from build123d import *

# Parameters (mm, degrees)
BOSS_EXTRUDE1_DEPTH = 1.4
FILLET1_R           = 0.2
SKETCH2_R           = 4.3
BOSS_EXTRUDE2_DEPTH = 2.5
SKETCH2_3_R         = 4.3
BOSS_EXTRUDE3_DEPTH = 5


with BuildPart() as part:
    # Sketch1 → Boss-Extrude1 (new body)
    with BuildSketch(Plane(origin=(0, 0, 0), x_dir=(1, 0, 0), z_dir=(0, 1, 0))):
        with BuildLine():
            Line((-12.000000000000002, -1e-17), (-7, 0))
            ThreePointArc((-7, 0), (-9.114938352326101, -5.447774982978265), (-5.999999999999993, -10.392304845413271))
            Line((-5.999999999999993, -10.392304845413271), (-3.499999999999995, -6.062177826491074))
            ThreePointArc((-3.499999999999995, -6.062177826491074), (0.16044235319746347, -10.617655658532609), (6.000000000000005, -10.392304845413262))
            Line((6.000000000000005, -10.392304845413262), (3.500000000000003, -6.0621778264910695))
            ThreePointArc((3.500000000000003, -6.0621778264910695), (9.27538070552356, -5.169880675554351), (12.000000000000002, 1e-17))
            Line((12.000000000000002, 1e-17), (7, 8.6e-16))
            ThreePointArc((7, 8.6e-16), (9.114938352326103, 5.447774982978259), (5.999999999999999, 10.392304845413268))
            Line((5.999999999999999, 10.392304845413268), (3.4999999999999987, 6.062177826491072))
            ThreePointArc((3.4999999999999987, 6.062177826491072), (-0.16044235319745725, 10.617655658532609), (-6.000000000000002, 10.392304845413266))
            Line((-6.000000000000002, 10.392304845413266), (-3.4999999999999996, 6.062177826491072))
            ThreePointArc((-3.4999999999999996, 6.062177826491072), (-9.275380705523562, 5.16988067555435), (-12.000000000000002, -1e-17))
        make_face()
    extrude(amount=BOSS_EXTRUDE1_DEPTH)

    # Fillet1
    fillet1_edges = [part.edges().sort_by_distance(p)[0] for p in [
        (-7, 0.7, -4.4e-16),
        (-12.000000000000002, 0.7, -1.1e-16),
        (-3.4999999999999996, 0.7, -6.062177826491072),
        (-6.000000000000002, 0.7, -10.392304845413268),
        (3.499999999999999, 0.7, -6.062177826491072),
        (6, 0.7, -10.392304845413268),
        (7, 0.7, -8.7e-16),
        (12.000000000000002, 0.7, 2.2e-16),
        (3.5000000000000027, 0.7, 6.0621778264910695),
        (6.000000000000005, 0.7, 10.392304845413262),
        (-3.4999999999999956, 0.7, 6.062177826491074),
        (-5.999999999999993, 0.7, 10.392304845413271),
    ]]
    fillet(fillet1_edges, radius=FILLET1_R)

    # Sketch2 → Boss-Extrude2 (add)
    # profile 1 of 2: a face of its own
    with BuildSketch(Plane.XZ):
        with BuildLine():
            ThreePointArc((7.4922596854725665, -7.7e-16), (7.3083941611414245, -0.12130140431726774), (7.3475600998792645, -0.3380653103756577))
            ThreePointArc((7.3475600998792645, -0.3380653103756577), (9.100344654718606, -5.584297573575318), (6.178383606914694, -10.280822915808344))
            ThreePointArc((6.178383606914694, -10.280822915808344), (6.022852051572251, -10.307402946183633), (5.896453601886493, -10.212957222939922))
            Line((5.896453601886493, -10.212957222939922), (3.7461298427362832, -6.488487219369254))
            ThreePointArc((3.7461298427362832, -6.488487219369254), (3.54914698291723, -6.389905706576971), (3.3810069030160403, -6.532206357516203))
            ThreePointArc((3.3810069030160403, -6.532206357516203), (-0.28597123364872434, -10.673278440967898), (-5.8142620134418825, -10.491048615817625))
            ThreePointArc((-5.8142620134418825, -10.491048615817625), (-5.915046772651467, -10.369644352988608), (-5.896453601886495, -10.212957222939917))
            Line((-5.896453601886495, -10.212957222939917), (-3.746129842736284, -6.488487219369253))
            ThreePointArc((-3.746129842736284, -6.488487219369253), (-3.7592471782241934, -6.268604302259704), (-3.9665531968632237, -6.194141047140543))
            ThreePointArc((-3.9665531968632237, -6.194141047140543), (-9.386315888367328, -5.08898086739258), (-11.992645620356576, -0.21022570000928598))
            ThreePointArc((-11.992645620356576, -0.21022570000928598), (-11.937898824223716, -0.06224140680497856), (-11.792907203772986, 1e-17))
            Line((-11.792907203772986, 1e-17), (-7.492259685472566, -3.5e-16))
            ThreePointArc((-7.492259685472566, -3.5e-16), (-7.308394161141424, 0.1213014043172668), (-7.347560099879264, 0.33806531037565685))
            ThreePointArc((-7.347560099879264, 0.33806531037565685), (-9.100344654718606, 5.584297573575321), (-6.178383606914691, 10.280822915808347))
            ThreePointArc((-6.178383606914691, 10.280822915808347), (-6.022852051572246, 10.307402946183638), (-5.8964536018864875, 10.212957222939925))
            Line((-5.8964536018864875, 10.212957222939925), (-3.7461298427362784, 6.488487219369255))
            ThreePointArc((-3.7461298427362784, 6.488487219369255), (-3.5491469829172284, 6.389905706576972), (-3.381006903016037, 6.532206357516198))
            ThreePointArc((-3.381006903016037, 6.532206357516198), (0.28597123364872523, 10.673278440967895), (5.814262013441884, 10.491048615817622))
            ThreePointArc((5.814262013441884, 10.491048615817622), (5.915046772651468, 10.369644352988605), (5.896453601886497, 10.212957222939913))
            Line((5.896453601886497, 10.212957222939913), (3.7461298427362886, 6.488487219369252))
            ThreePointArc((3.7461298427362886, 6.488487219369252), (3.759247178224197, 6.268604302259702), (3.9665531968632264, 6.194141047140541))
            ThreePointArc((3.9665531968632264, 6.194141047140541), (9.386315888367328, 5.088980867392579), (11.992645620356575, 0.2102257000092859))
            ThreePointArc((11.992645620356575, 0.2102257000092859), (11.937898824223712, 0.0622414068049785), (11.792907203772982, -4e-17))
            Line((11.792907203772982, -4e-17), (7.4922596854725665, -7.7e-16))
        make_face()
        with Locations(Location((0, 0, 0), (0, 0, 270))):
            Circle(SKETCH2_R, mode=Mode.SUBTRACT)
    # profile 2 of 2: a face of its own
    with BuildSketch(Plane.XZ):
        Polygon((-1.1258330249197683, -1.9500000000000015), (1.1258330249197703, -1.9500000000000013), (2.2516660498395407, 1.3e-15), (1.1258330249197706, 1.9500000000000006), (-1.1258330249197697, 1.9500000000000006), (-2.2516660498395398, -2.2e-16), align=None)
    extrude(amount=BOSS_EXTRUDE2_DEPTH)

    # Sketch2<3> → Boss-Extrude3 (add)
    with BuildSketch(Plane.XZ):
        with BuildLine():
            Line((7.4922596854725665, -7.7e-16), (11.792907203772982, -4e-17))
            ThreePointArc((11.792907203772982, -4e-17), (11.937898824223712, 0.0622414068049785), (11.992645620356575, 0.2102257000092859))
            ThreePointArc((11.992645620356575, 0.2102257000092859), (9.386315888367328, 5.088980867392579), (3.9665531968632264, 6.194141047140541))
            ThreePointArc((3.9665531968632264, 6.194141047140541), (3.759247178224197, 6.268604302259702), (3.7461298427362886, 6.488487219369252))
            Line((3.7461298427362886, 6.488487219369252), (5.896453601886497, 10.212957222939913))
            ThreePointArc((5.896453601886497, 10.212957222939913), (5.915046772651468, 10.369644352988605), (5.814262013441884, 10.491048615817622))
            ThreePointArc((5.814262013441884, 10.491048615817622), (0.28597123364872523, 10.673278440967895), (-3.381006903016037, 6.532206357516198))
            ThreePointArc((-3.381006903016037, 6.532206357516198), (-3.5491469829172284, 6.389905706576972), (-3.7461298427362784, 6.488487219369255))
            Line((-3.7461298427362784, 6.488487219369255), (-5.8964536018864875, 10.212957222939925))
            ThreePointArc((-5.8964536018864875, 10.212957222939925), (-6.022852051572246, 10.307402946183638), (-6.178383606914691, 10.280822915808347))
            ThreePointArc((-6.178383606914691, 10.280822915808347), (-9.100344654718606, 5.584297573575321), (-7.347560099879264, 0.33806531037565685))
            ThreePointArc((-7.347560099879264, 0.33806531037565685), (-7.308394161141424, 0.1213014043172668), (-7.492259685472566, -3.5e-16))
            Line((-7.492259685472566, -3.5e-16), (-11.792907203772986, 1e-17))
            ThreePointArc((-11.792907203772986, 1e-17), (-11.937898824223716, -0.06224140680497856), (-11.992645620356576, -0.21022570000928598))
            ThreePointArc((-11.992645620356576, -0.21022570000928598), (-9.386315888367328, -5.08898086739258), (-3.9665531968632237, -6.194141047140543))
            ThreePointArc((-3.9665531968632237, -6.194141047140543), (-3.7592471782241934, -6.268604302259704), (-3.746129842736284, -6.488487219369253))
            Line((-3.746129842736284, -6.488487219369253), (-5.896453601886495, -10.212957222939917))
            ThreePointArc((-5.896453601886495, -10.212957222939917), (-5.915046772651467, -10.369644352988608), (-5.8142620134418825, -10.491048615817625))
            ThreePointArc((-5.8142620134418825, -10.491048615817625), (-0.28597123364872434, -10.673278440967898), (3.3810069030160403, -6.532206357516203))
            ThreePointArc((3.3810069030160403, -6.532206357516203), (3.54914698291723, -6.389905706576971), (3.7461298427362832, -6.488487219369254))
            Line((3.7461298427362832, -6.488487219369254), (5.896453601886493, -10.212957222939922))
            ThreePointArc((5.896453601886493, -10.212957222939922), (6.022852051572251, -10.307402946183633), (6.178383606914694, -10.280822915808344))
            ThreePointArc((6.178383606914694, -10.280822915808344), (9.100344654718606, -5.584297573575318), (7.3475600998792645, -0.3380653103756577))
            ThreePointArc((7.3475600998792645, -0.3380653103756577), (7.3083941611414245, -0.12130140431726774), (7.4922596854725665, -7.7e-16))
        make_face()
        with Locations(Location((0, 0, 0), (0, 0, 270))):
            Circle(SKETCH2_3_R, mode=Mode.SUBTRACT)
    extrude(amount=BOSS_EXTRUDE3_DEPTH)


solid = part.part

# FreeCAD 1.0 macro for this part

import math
import FreeCAD as App
import Part
import Sketcher
Q = App.Units.Quantity


def edges_at(feature, points):
    """Names of the edges that pass closest to the given points."""
    edges = feature.Shape.Edges
    near = lambda p: min(range(len(edges)), key=lambda i: edges[i].distToShape(Part.Vertex(*p))[0])
    return sorted({f"Edge{near(p) + 1}" for p in points})

doc = App.newDocument("Part")
body = doc.addObject("PartDesign::Body", "Body")

sketch1 = doc.addObject("Sketcher::SketchObject", "Sketch")
body.addObject(sketch1)
sketch1.AttachmentSupport = (doc.XZ_Plane, [""])
sketch1.MapMode = "FlatFace"
sketch1.addGeometry([
    Part.LineSegment(App.Vector(-12, 0, 0), App.Vector(-7, 0, 0)),
    Part.ArcOfCircle(Part.Circle(App.Vector(-3, 5, 0), App.Vector(0, 0, 1), 6), math.radians(121), math.radians(228)),
    Part.LineSegment(App.Vector(-6, 10, 0), App.Vector(-4, 6, 0)),
    Part.ArcOfCircle(Part.Circle(App.Vector(3, 5, 0), App.Vector(0, 0, 1), 6), math.radians(61), math.radians(168)),
    Part.LineSegment(App.Vector(6, 10, 0), App.Vector(4, 6, 0)),
    Part.ArcOfCircle(Part.Circle(App.Vector(6, 0, 0), App.Vector(0, 0, 1), 6), math.radians(1), math.radians(108)),
    Part.LineSegment(App.Vector(12, 0, 0), App.Vector(7, 0, 0)),
    Part.ArcOfCircle(Part.Circle(App.Vector(3, -5, 0), App.Vector(0, 0, 1), 6), math.radians(-59), math.radians(48)),
    Part.LineSegment(App.Vector(6, -10, 0), App.Vector(4, -6, 0)),
    Part.ArcOfCircle(Part.Circle(App.Vector(-3, -5, 0), App.Vector(0, 0, 1), 6), math.radians(-119), math.radians(-12)),
    Part.LineSegment(App.Vector(-6, -10, 0), App.Vector(-4, -6, 0)),
    Part.ArcOfCircle(Part.Circle(App.Vector(-6, 0, 0), App.Vector(0, 0, 1), 6), math.radians(-179), math.radians(-72)),
], False)
sketch1.addConstraint([
    Sketcher.Constraint("Coincident", 0, 2, 1, 2),
    Sketcher.Constraint("Coincident", 1, 1, 2, 1),
    Sketcher.Constraint("Coincident", 2, 2, 3, 2),
    Sketcher.Constraint("Coincident", 3, 1, 4, 1),
    Sketcher.Constraint("Coincident", 4, 2, 5, 2),
    Sketcher.Constraint("Coincident", 5, 1, 6, 1),
    Sketcher.Constraint("Coincident", 6, 2, 7, 2),
    Sketcher.Constraint("Coincident", 7, 1, 8, 1),
    Sketcher.Constraint("Coincident", 8, 2, 9, 2),
    Sketcher.Constraint("Coincident", 9, 1, 10, 1),
    Sketcher.Constraint("Coincident", 10, 2, 11, 2),
    Sketcher.Constraint("Coincident", 11, 1, 0, 1),
    Sketcher.Constraint("Horizontal", 0),
    Sketcher.Constraint("Horizontal", 6),
    Sketcher.Constraint("Equal", 1, 3),
    Sketcher.Constraint("Equal", 3, 5),
    Sketcher.Constraint("Equal", 5, 7),
    Sketcher.Constraint("Equal", 7, 9),
    Sketcher.Constraint("Equal", 9, 11),
    Sketcher.Constraint("Symmetric", 1, 3, 7, 3, -1, 1),
    Sketcher.Constraint("Symmetric", 3, 3, 9, 3, -1, 1),
    Sketcher.Constraint("Symmetric", 5, 3, 11, 3, -1, 1),
    Sketcher.Constraint("Symmetric", 1, 1, 3, 1, -2),
    Sketcher.Constraint("Symmetric", 2, 2, 4, 2, -2),
    Sketcher.Constraint("Symmetric", 0, 2, 6, 2, -2),
    Sketcher.Constraint("Symmetric", 7, 1, 9, 1, -2),
    Sketcher.Constraint("Symmetric", 8, 2, 10, 2, -2),
    Sketcher.Constraint("Radius", 1, Q("6.5 mm")),
    Sketcher.Constraint("DistanceX", 0, 1, 0, 2, Q("5 mm")),
    Sketcher.Constraint("Angle", 2, Q("-60 deg")),
    Sketcher.Constraint("Distance", 2, Q("5 mm")),
    Sketcher.Constraint("DistanceX", 0, 2, -1, 1, Q("7 mm")),
    Sketcher.Constraint("DistanceX", 1, 1, -1, 1, Q("6 mm")),
    Sketcher.Constraint("DistanceX", 7, 3, 3, 3, Q("0.2115 mm")),
])
pad1 = doc.addObject("PartDesign::Pad", "Pad")
body.addObject(pad1)
pad1.Profile = sketch1
pad1.Length = 1.4
pad1.Reversed = True
doc.recompute()

fillet = doc.addObject("PartDesign::Fillet", "Fillet")
body.addObject(fillet)
fillet.Base = (pad1, edges_at(pad1, [
    (-7, 0.7, 0),
    (-12, 0.7, 0),
    (-3.5, 0.7, -6.062),
    (-6, 0.7, -10.392),
    (3.5, 0.7, -6.062),
    (6, 0.7, -10.392),
    (7, 0.7, 0),
    (12, 0.7, 0),
    (3.5, 0.7, 6.062),
    (6, 0.7, 10.392),
    (-3.5, 0.7, 6.062),
    (-6, 0.7, 10.392),
]))
fillet.Radius = 0.2

sketch2 = doc.addObject("Sketcher::SketchObject", "Sketch001")
body.addObject(sketch2)
sketch2.AttachmentSupport = (doc.XZ_Plane, [""])
sketch2.MapMode = "FlatFace"
sketch2.addGeometry([
    Part.ArcOfCircle(Part.Circle(App.Vector(7.49, -0.2, 0), App.Vector(0, 0, 1), 0.2), math.radians(90), math.radians(224)),
    Part.LineSegment(App.Vector(7.49, 0, 0), App.Vector(11.79, 0, 0)),
    Part.ArcOfCircle(Part.Circle(App.Vector(11.79, 0.2, 0), App.Vector(0, 0, 1), 0.2), math.radians(-90), math.radians(3)),
    Part.ArcOfCircle(Part.Circle(App.Vector(5.5, -0.12, 0), App.Vector(0, 0, 1), 6.5), math.radians(3), math.radians(104)),
    Part.ArcOfCircle(Part.Circle(App.Vector(3.92, 6.39, 0), App.Vector(0, 0, 1), 0.2), math.radians(150), math.radians(284)),
    Part.LineSegment(App.Vector(3.75, 6.49, 0), App.Vector(5.9, 10.21, 0)),
    Part.ArcOfCircle(Part.Circle(App.Vector(5.72, 10.31, 0), App.Vector(0, 0, 1), 0.2), math.radians(-30), math.radians(63)),
    Part.ArcOfCircle(Part.Circle(App.Vector(2.86, 4.7, 0), App.Vector(0, 0, 1), 6.5), math.radians(63), math.radians(164)),
    Part.ArcOfCircle(Part.Circle(App.Vector(-3.57, 6.59, 0), App.Vector(0, 0, 1), 0.2), math.radians(-150), math.radians(-16)),
    Part.LineSegment(App.Vector(-3.75, 6.49, 0), App.Vector(-5.9, 10.21, 0)),
    Part.ArcOfCircle(Part.Circle(App.Vector(-6.07, 10.11, 0), App.Vector(0, 0, 1), 0.2), math.radians(30), math.radians(123)),
    Part.ArcOfCircle(Part.Circle(App.Vector(-2.64, 4.83, 0), App.Vector(0, 0, 1), 6.5), math.radians(123), math.radians(224)),
    Part.ArcOfCircle(Part.Circle(App.Vector(-7.49, 0.2, 0), App.Vector(0, 0, 1), 0.2), math.radians(-90), math.radians(44)),
    Part.LineSegment(App.Vector(-7.49, 0, 0), App.Vector(-11.79, 0, 0)),
    Part.ArcOfCircle(Part.Circle(App.Vector(-11.79, -0.2, 0), App.Vector(0, 0, 1), 0.2), math.radians(90), math.radians(183)),
    Part.ArcOfCircle(Part.Circle(App.Vector(-5.5, 0.12, 0), App.Vector(0, 0, 1), 6.5), math.radians(-177), math.radians(-76)),
    Part.ArcOfCircle(Part.Circle(App.Vector(-3.92, -6.39, 0), App.Vector(0, 0, 1), 0.2), math.radians(-30), math.radians(104)),
    Part.LineSegment(App.Vector(-3.75, -6.49, 0), App.Vector(-5.9, -10.21, 0)),
    Part.ArcOfCircle(Part.Circle(App.Vector(-5.72, -10.31, 0), App.Vector(0, 0, 1), 0.2), math.radians(150), math.radians(243)),
    Part.ArcOfCircle(Part.Circle(App.Vector(-2.86, -4.7, 0), App.Vector(0, 0, 1), 6.5), math.radians(-117), math.radians(-16)),
    Part.ArcOfCircle(Part.Circle(App.Vector(3.57, -6.59, 0), App.Vector(0, 0, 1), 0.2), math.radians(30), math.radians(164)),
    Part.LineSegment(App.Vector(3.75, -6.49, 0), App.Vector(5.9, -10.21, 0)),
    Part.ArcOfCircle(Part.Circle(App.Vector(6.07, -10.11, 0), App.Vector(0, 0, 1), 0.2), math.radians(-150), math.radians(-57)),
    Part.ArcOfCircle(Part.Circle(App.Vector(2.64, -4.83, 0), App.Vector(0, 0, 1), 6.5), math.radians(-57), math.radians(44)),
    Part.Circle(App.Vector(0, 0, 0), App.Vector(0, 0, 1), 4.3),
    Part.LineSegment(App.Vector(-1.13, -1.95, 0), App.Vector(1.13, -1.95, 0)),
    Part.LineSegment(App.Vector(1.13, -1.95, 0), App.Vector(2.25, 0, 0)),
    Part.LineSegment(App.Vector(2.25, 0, 0), App.Vector(1.13, 1.95, 0)),
    Part.LineSegment(App.Vector(1.13, 1.95, 0), App.Vector(-1.13, 1.95, 0)),
    Part.LineSegment(App.Vector(-1.13, 1.95, 0), App.Vector(-2.25, 0, 0)),
    Part.LineSegment(App.Vector(-2.25, 0, 0), App.Vector(-1.13, -1.95, 0)),
], False)
sketch2.addConstraint([
    Sketcher.Constraint("Tangent", 0, 1, 1, 1),
    Sketcher.Constraint("Tangent", 1, 2, 2, 1),
    Sketcher.Constraint("Tangent", 2, 2, 3, 1),
    Sketcher.Constraint("Tangent", 3, 2, 4, 2),
    Sketcher.Constraint("Tangent", 4, 1, 5, 1),
    Sketcher.Constraint("Tangent", 5, 2, 6, 1),
    Sketcher.Constraint("Tangent", 6, 2, 7, 1),
    Sketcher.Constraint("Tangent", 7, 2, 8, 2),
    Sketcher.Constraint("Tangent", 8, 1, 9, 1),
    Sketcher.Constraint("Tangent", 9, 2, 10, 1),
    Sketcher.Constraint("Tangent", 10, 2, 11, 1),
    Sketcher.Constraint("Tangent", 11, 2, 12, 2),
    Sketcher.Constraint("Tangent", 12, 1, 13, 1),
    Sketcher.Constraint("Tangent", 13, 2, 14, 1),
    Sketcher.Constraint("Tangent", 14, 2, 15, 1),
    Sketcher.Constraint("Tangent", 15, 2, 16, 2),
    Sketcher.Constraint("Tangent", 16, 1, 17, 1),
    Sketcher.Constraint("Tangent", 17, 2, 18, 1),
    Sketcher.Constraint("Tangent", 18, 2, 19, 1),
    Sketcher.Constraint("Tangent", 19, 2, 20, 2),
    Sketcher.Constraint("Tangent", 20, 1, 21, 1),
    Sketcher.Constraint("Tangent", 21, 2, 22, 1),
    Sketcher.Constraint("Tangent", 22, 2, 23, 1),
    Sketcher.Constraint("Tangent", 23, 2, 0, 2),
    Sketcher.Constraint("Coincident", 25, 2, 26, 1),
    Sketcher.Constraint("Coincident", 26, 2, 27, 1),
    Sketcher.Constraint("Coincident", 27, 2, 28, 1),
    Sketcher.Constraint("Coincident", 28, 2, 29, 1),
    Sketcher.Constraint("Coincident", 29, 2, 30, 1),
    Sketcher.Constraint("Coincident", 30, 2, 25, 1),
    Sketcher.Constraint("Horizontal", 1),
    Sketcher.Constraint("Horizontal", 13),
    Sketcher.Constraint("Horizontal", 25),
    Sketcher.Constraint("Horizontal", 28),
    Sketcher.Constraint("Coincident", 24, 3, -1, 1),
    Sketcher.Constraint("Equal", 0, 2),
    Sketcher.Constraint("Equal", 2, 4),
    Sketcher.Constraint("Equal", 4, 6),
    Sketcher.Constraint("Equal", 3, 7),
    Sketcher.Constraint("Equal", 6, 8),
    Sketcher.Constraint("Equal", 8, 10),
    Sketcher.Constraint("Equal", 7, 11),
    Sketcher.Constraint("Equal", 10, 12),
    Sketcher.Constraint("Equal", 12, 14),
    Sketcher.Constraint("Equal", 11, 15),
    Sketcher.Constraint("Equal", 14, 16),
    Sketcher.Constraint("Equal", 16, 18),
    Sketcher.Constraint("Equal", 15, 19),
    Sketcher.Constraint("Equal", 18, 20),
    Sketcher.Constraint("Equal", 20, 22),
    Sketcher.Constraint("Equal", 19, 23),
    Sketcher.Constraint("Symmetric", 0, 3, 12, 3, -1, 1),
    Sketcher.Constraint("Symmetric", 3, 3, 15, 3, -1, 1),
    Sketcher.Constraint("Symmetric", 6, 3, 18, 3, -1, 1),
    Sketcher.Constraint("Symmetric", 8, 3, 20, 3, -1, 1),
    Sketcher.Constraint("Symmetric", 10, 3, 22, 3, -1, 1),
    Sketcher.Constraint("Symmetric", 25, 2, 28, 2, -1, 1),
    Sketcher.Constraint("Symmetric", 26, 2, 29, 2, -1, 1),
    Sketcher.Constraint("Symmetric", 4, 1, 8, 1, -2),
    Sketcher.Constraint("Symmetric", 5, 2, 9, 2, -2),
    Sketcher.Constraint("PointOnObject", 0, 1, -1),
    Sketcher.Constraint("PointOnObject", 26, 2, -1),
    Sketcher.Constraint("Parallel", 5, 17),
    Sketcher.Constraint("Parallel", 17, 26),
    Sketcher.Constraint("Parallel", 21, 27),
    Sketcher.Constraint("Parallel", 27, 30),
    Sketcher.Constraint("Diameter", 24, Q("8.6 mm")),
    Sketcher.Constraint("Radius", 0, Q("0.2 mm")),
    Sketcher.Constraint("Radius", 3, Q("6.5 mm")),
    Sketcher.Constraint("Angle", 5, Q("60 deg")),
    Sketcher.Constraint("DistanceY", 25, 2, 27, 2, Q("3.9 mm")),
    Sketcher.Constraint("DistanceX", 3, 3, 6, 3, Q("0.222101 mm")),
    Sketcher.Constraint("DistanceX", 8, 3, 11, 3, Q("0.928101 mm")),
    Sketcher.Constraint("DistanceY", 11, 3, 8, 3, Q("1.763299 mm")),
    Sketcher.Constraint("DistanceX", 12, 3, 10, 3, Q("1.422601 mm")),
    Sketcher.Constraint("DistanceX", 28, 2, 26, 2, Q("3.377499 mm")),
    Sketcher.Constraint("DistanceX", -1, 1, 0, 3, Q("7.49226 mm")),
])
pad2 = doc.addObject("PartDesign::Pad", "Pad001")
body.addObject(pad2)
pad2.Profile = sketch2
pad2.Length = 2.5

sketch3 = doc.addObject("Sketcher::SketchObject", "Sketch002")
body.addObject(sketch3)
sketch3.AttachmentSupport = (doc.XZ_Plane, [""])
sketch3.MapMode = "FlatFace"
sketch3.addGeometry([
    Part.LineSegment(App.Vector(7.49, 0, 0), App.Vector(11.79, 0, 0)),
    Part.ArcOfCircle(Part.Circle(App.Vector(11.79, 0.2, 0), App.Vector(0, 0, 1), 0.2), math.radians(-90), math.radians(3)),
    Part.ArcOfCircle(Part.Circle(App.Vector(5.5, -0.12, 0), App.Vector(0, 0, 1), 6.5), math.radians(3), math.radians(104)),
    Part.ArcOfCircle(Part.Circle(App.Vector(3.92, 6.39, 0), App.Vector(0, 0, 1), 0.2), math.radians(150), math.radians(284)),
    Part.LineSegment(App.Vector(3.75, 6.49, 0), App.Vector(5.9, 10.21, 0)),
    Part.ArcOfCircle(Part.Circle(App.Vector(5.72, 10.31, 0), App.Vector(0, 0, 1), 0.2), math.radians(-30), math.radians(63)),
    Part.ArcOfCircle(Part.Circle(App.Vector(2.86, 4.7, 0), App.Vector(0, 0, 1), 6.5), math.radians(63), math.radians(164)),
    Part.ArcOfCircle(Part.Circle(App.Vector(-3.57, 6.59, 0), App.Vector(0, 0, 1), 0.2), math.radians(-150), math.radians(-16)),
    Part.LineSegment(App.Vector(-3.75, 6.49, 0), App.Vector(-5.9, 10.21, 0)),
    Part.ArcOfCircle(Part.Circle(App.Vector(-6.07, 10.11, 0), App.Vector(0, 0, 1), 0.2), math.radians(30), math.radians(123)),
    Part.ArcOfCircle(Part.Circle(App.Vector(-2.64, 4.83, 0), App.Vector(0, 0, 1), 6.5), math.radians(123), math.radians(224)),
    Part.ArcOfCircle(Part.Circle(App.Vector(-7.49, 0.2, 0), App.Vector(0, 0, 1), 0.2), math.radians(-90), math.radians(44)),
    Part.LineSegment(App.Vector(-7.49, 0, 0), App.Vector(-11.79, 0, 0)),
    Part.ArcOfCircle(Part.Circle(App.Vector(-11.79, -0.2, 0), App.Vector(0, 0, 1), 0.2), math.radians(90), math.radians(183)),
    Part.ArcOfCircle(Part.Circle(App.Vector(-5.5, 0.12, 0), App.Vector(0, 0, 1), 6.5), math.radians(-177), math.radians(-76)),
    Part.ArcOfCircle(Part.Circle(App.Vector(-3.92, -6.39, 0), App.Vector(0, 0, 1), 0.2), math.radians(-30), math.radians(104)),
    Part.LineSegment(App.Vector(-3.75, -6.49, 0), App.Vector(-5.9, -10.21, 0)),
    Part.ArcOfCircle(Part.Circle(App.Vector(-5.72, -10.31, 0), App.Vector(0, 0, 1), 0.2), math.radians(150), math.radians(243)),
    Part.ArcOfCircle(Part.Circle(App.Vector(-2.86, -4.7, 0), App.Vector(0, 0, 1), 6.5), math.radians(-117), math.radians(-16)),
    Part.ArcOfCircle(Part.Circle(App.Vector(3.57, -6.59, 0), App.Vector(0, 0, 1), 0.2), math.radians(30), math.radians(164)),
    Part.LineSegment(App.Vector(3.75, -6.49, 0), App.Vector(5.9, -10.21, 0)),
    Part.ArcOfCircle(Part.Circle(App.Vector(6.07, -10.11, 0), App.Vector(0, 0, 1), 0.2), math.radians(-150), math.radians(-57)),
    Part.ArcOfCircle(Part.Circle(App.Vector(2.64, -4.83, 0), App.Vector(0, 0, 1), 6.5), math.radians(-57), math.radians(44)),
    Part.ArcOfCircle(Part.Circle(App.Vector(7.49, -0.2, 0), App.Vector(0, 0, 1), 0.2), math.radians(90), math.radians(224)),
    Part.Circle(App.Vector(0, 0, 0), App.Vector(0, 0, 1), 4.3),
], False)
sketch3.addConstraint([
    Sketcher.Constraint("Tangent", 0, 2, 1, 1),
    Sketcher.Constraint("Tangent", 1, 2, 2, 1),
    Sketcher.Constraint("Tangent", 2, 2, 3, 2),
    Sketcher.Constraint("Tangent", 3, 1, 4, 1),
    Sketcher.Constraint("Tangent", 4, 2, 5, 1),
    Sketcher.Constraint("Tangent", 5, 2, 6, 1),
    Sketcher.Constraint("Tangent", 6, 2, 7, 2),
    Sketcher.Constraint("Tangent", 7, 1, 8, 1),
    Sketcher.Constraint("Tangent", 8, 2, 9, 1),
    Sketcher.Constraint("Tangent", 9, 2, 10, 1),
    Sketcher.Constraint("Tangent", 10, 2, 11, 2),
    Sketcher.Constraint("Tangent", 11, 1, 12, 1),
    Sketcher.Constraint("Tangent", 12, 2, 13, 1),
    Sketcher.Constraint("Tangent", 13, 2, 14, 1),
    Sketcher.Constraint("Tangent", 14, 2, 15, 2),
    Sketcher.Constraint("Tangent", 15, 1, 16, 1),
    Sketcher.Constraint("Tangent", 16, 2, 17, 1),
    Sketcher.Constraint("Tangent", 17, 2, 18, 1),
    Sketcher.Constraint("Tangent", 18, 2, 19, 2),
    Sketcher.Constraint("Tangent", 19, 1, 20, 1),
    Sketcher.Constraint("Tangent", 20, 2, 21, 1),
    Sketcher.Constraint("Tangent", 21, 2, 22, 1),
    Sketcher.Constraint("Tangent", 22, 2, 23, 2),
    Sketcher.Constraint("Tangent", 23, 1, 0, 1),
    Sketcher.Constraint("Horizontal", 0),
    Sketcher.Constraint("Horizontal", 12),
    Sketcher.Constraint("Coincident", 24, 3, -1, 1),
    Sketcher.Constraint("Equal", 1, 3),
    Sketcher.Constraint("Equal", 3, 5),
    Sketcher.Constraint("Equal", 2, 6),
    Sketcher.Constraint("Equal", 5, 7),
    Sketcher.Constraint("Equal", 7, 9),
    Sketcher.Constraint("Equal", 6, 10),
    Sketcher.Constraint("Equal", 9, 11),
    Sketcher.Constraint("Equal", 11, 13),
    Sketcher.Constraint("Equal", 10, 14),
    Sketcher.Constraint("Equal", 13, 15),
    Sketcher.Constraint("Equal", 15, 17),
    Sketcher.Constraint("Equal", 14, 18),
    Sketcher.Constraint("Equal", 17, 19),
    Sketcher.Constraint("Equal", 19, 21),
    Sketcher.Constraint("Equal", 18, 22),
    Sketcher.Constraint("Equal", 21, 23),
    Sketcher.Constraint("Symmetric", 1, 3, 13, 3, -1, 1),
    Sketcher.Constraint("Symmetric", 3, 3, 15, 3, -1, 1),
    Sketcher.Constraint("Symmetric", 5, 3, 17, 3, -1, 1),
    Sketcher.Constraint("Symmetric", 7, 3, 19, 3, -1, 1),
    Sketcher.Constraint("Symmetric", 9, 3, 21, 3, -1, 1),
    Sketcher.Constraint("Symmetric", 3, 1, 7, 1, -2),
    Sketcher.Constraint("Symmetric", 4, 2, 8, 2, -2),
    Sketcher.Constraint("Symmetric", 11, 1, 23, 1, -2),
    Sketcher.Constraint("Diameter", 24, Q("8.6 mm")),
    Sketcher.Constraint("Radius", 1, Q("0.2 mm")),
    Sketcher.Constraint("Radius", 2, Q("6.5 mm")),
    Sketcher.Constraint("Angle", 4, Q("60 deg")),
    Sketcher.Constraint("DistanceX", 2, 3, 5, 3, Q("0.222101 mm")),
    Sketcher.Constraint("DistanceX", 7, 3, 10, 3, Q("0.928101 mm")),
    Sketcher.Constraint("DistanceY", 10, 3, 7, 3, Q("1.763299 mm")),
    Sketcher.Constraint("DistanceX", 11, 3, 9, 3, Q("1.422601 mm")),
    Sketcher.Constraint("DistanceX", -1, 1, 5, 3, Q("5.723249 mm")),
])
pad3 = doc.addObject("PartDesign::Pad", "Pad002")
body.addObject(pad3)
pad3.Profile = sketch3
pad3.Length = 5

doc.recompute()
